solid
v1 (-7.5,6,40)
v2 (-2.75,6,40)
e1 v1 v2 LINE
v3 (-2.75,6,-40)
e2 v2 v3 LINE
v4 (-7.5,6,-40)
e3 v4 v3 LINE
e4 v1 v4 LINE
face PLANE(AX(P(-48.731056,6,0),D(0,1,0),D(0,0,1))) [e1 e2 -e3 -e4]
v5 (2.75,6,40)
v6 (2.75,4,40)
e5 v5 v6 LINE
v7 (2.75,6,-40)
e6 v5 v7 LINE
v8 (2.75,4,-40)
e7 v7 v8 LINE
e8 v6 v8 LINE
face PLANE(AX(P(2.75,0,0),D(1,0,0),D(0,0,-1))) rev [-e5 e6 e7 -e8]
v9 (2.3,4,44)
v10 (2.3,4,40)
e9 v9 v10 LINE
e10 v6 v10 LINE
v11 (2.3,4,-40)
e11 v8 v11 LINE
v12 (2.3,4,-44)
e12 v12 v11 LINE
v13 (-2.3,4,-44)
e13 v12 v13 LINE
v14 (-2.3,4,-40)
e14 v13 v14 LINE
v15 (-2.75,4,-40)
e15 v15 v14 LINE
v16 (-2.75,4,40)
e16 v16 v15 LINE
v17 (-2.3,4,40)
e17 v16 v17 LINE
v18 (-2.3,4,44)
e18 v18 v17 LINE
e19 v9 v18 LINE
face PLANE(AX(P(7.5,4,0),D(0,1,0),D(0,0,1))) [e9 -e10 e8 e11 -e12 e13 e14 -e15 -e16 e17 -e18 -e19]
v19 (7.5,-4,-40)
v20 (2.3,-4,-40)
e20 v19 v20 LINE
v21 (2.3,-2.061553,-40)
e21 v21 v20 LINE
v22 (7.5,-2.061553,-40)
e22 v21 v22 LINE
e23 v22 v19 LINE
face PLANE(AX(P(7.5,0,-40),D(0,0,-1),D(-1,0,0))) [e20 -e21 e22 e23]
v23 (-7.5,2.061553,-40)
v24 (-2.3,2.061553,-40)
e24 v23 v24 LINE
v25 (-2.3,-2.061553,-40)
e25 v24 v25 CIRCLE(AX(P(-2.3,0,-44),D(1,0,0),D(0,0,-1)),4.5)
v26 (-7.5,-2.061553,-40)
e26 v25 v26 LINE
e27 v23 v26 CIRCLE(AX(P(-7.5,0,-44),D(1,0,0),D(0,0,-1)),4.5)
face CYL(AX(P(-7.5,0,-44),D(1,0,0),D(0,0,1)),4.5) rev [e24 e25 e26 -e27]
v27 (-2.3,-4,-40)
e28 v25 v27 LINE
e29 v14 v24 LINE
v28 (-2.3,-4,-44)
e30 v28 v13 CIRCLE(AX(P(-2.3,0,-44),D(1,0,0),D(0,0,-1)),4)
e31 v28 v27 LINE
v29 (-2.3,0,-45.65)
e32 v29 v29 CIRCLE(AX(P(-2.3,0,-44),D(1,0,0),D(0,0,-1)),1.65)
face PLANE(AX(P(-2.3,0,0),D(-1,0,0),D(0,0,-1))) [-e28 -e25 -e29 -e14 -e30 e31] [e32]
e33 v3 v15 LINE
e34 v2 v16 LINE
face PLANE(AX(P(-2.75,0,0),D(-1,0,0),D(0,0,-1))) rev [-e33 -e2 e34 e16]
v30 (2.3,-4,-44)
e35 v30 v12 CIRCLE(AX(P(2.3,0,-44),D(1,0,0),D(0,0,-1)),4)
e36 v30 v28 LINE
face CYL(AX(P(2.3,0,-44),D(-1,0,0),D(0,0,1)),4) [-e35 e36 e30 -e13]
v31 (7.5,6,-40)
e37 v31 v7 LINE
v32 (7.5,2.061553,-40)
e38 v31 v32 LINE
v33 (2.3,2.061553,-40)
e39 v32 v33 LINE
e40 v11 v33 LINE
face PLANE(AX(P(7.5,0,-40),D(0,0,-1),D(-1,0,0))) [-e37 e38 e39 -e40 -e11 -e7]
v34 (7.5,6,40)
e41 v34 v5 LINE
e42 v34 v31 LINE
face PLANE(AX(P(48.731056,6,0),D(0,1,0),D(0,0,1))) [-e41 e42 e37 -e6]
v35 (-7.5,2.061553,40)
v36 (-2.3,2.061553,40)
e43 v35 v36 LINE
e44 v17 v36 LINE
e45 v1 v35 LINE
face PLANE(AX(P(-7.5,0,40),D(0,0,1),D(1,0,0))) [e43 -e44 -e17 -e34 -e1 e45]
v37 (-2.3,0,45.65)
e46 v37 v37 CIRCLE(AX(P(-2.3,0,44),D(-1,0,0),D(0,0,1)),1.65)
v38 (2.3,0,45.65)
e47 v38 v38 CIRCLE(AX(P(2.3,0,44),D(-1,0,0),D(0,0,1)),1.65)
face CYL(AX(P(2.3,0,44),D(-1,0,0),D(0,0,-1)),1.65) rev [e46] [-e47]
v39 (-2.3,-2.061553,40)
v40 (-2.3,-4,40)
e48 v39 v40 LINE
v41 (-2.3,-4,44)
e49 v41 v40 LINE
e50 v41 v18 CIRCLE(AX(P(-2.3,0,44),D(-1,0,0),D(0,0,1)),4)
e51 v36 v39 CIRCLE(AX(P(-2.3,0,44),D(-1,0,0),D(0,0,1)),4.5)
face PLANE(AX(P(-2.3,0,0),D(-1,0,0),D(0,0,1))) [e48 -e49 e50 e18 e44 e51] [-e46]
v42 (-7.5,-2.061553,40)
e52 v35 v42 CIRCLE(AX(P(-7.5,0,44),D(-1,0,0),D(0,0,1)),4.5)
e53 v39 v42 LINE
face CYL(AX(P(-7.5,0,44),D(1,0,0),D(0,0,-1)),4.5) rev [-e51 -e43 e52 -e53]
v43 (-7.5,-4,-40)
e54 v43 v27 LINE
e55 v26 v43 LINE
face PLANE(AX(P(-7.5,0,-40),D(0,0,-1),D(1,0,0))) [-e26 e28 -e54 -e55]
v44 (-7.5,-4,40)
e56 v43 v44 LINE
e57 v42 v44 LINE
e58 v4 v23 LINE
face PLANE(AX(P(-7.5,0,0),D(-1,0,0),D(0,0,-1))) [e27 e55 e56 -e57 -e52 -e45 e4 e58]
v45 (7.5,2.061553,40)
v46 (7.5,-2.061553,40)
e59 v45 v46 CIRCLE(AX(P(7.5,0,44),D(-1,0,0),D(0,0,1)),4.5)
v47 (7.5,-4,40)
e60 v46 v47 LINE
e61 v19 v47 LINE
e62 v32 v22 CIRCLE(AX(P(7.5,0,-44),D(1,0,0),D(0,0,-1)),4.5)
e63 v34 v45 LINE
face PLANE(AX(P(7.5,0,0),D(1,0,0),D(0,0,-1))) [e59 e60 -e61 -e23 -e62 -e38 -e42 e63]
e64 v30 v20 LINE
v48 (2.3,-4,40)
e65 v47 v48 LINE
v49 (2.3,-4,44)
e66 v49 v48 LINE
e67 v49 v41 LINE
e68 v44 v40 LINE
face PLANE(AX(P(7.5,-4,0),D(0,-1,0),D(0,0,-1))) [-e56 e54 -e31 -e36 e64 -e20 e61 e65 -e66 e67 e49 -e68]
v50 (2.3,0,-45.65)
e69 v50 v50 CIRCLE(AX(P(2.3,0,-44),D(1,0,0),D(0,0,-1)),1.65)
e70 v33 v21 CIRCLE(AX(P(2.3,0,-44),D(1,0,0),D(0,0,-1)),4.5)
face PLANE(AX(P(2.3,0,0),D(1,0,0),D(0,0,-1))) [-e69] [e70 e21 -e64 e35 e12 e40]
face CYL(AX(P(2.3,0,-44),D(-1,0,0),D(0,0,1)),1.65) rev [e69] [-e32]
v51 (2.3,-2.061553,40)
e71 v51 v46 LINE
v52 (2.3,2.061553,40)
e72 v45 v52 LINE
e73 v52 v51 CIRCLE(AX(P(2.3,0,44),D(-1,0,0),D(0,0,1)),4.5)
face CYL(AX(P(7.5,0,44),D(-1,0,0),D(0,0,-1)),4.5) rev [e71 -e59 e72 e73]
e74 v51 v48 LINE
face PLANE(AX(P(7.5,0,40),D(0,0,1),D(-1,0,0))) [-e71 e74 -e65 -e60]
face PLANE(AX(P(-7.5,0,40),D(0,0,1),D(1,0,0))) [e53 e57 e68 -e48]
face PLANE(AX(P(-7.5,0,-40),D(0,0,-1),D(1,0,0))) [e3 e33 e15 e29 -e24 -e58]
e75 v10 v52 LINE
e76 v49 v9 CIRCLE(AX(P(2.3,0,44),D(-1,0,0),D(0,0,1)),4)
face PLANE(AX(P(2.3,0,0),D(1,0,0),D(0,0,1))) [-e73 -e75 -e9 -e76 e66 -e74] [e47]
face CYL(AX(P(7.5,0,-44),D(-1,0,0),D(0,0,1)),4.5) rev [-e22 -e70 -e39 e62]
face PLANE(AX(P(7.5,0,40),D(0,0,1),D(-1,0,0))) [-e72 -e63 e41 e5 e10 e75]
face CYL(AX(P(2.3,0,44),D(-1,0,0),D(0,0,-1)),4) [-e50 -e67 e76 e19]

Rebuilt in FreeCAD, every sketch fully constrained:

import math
import FreeCAD as App
import Part
import Sketcher

V = App.Vector


def add_polygon(sketch, points):
    """Adds a closed chain of lines whose ends are joined by coincident constraints."""
    first, n = sketch.GeometryCount, len(points)
    for a, b in zip(points, points[1:] + points[:1]):
        sketch.addGeometry(Part.LineSegment(App.Vector(*a, 0), App.Vector(*b, 0)), False)
    for i in range(n):
        sketch.addConstraint(Sketcher.Constraint("Coincident", first + i, 2, first + (i + 1) % n, 1))

doc = App.newDocument("Part")
body = doc.addObject("PartDesign::Body", "Body")

# Sketch on YZ plane
sketch1 = body.newObject("Sketcher::SketchObject", "Sketch")
sketch1.AttachmentSupport = (doc.getObject("YZ_Plane"), [""])
sketch1.MapMode = "FlatFace"
add_polygon(sketch1, [(4, 0), (-4, 0), (-4, -40), (4, -40)])  # lines 0-3
sketch1.addConstraint([
    Sketcher.Constraint("Horizontal", 0),
    Sketcher.Constraint("Vertical", 1),
    Sketcher.Constraint("Horizontal", 2),
    Sketcher.Constraint("Vertical", 3),
    Sketcher.Constraint("Symmetric", 0, 2, 3, 2, -1, 1),
    Sketcher.Constraint("DistanceX", 0, 2, 0, 1, 8.0),
    Sketcher.Constraint("DistanceY", 1, 2, 1, 1, 40.0),
])
pad1 = body.newObject("PartDesign::Pad", "Pad")
pad1.Profile = sketch1
pad1.Length = 7.5

# Sketch on YZ plane
sketch2 = body.newObject("Sketcher::SketchObject", "Sketch001")
sketch2.AttachmentSupport = (doc.getObject("YZ_Plane"), [""])
sketch2.MapMode = "FlatFace"
sketch2.AttachmentOffset = App.Placement(V(0, 0, 2.75), App.Rotation())
add_polygon(sketch2, [(6, 0), (-4, 0), (-4, -40), (6, -40)])  # lines 0-3
sketch2.addConstraint([
    Sketcher.Constraint("Horizontal", 0),
    Sketcher.Constraint("Vertical", 1),
    Sketcher.Constraint("Horizontal", 2),
    Sketcher.Constraint("Vertical", 3),
    Sketcher.Constraint("PointOnObject", 0, 2, -1),
    Sketcher.Constraint("DistanceX", 0, 2, 0, 1, 10.0),
    Sketcher.Constraint("DistanceY", 1, 2, 1, 1, 40.0),
    Sketcher.Constraint("DistanceX", 0, 2, -1, 1, 4.0),
])
pad2 = body.newObject("PartDesign::Pad", "Pad001")
pad2.Profile = sketch2
pad2.Length = 4.75

# Sketch on YZ plane
sketch3 = body.newObject("Sketcher::SketchObject", "Sketch002")
sketch3.AttachmentSupport = (doc.getObject("YZ_Plane"), [""])
sketch3.MapMode = "FlatFace"
sketch3.addGeometry([
    Part.LineSegment(V(4, -44, 0), V(4, -40, 0)),  # 0
    Part.LineSegment(V(4, -40, 0), V(-4, -40, 0)),  # 1
    Part.LineSegment(V(-4, -40, 0), V(-4, -44, 0)),  # 2
    Part.ArcOfCircle(Part.Circle(V(0, -44, 0), V(0, 0, 1), 4), math.radians(180), math.radians(360)),  # 3
    Part.Circle(V(0, -44, 0), V(0, 0, 1), 1.6),  # 4
], False)
sketch3.addConstraint([
    Sketcher.Constraint("Coincident", 0, 2, 1, 1),
    Sketcher.Constraint("Coincident", 1, 2, 2, 1),
    Sketcher.Constraint("Tangent", 2, 2, 3, 1),
    Sketcher.Constraint("Tangent", 3, 2, 0, 1),
    Sketcher.Constraint("Vertical", 0),
    Sketcher.Constraint("Horizontal", 1),
    Sketcher.Constraint("Vertical", 2),
    Sketcher.Constraint("Coincident", 4, 3, 3, 3),
    Sketcher.Constraint("PointOnObject", 3, 3, -2),
    Sketcher.Constraint("Radius", 3, 4.0),
    Sketcher.Constraint("Diameter", 4, 3.3),
    Sketcher.Constraint("DistanceY", 0, 1, 0, 2, 4.0),
    Sketcher.Constraint("DistanceY", 3, 3, -1, 1, 44.0),
])
pad3 = body.newObject("PartDesign::Pad", "Pad002")
pad3.Profile = sketch3
pad3.Length = 2.3

# Sketch on YZ plane
sketch4 = body.newObject("Sketcher::SketchObject", "Sketch003")
sketch4.AttachmentSupport = (doc.getObject("YZ_Plane"), [""])
sketch4.MapMode = "FlatFace"
sketch4.AttachmentOffset = App.Placement(V(0, 0, 2.3), App.Rotation())
sketch4.addGeometry(Part.Circle(V(0, -44, 0), V(0, 0, 1), 4.5), False)
sketch4.addConstraint([
    Sketcher.Constraint("PointOnObject", 0, 3, -2),
    Sketcher.Constraint("Diameter", 0, 9.0),
    Sketcher.Constraint("DistanceY", 0, 3, -1, 1, 44.0),
])
pocket1 = body.newObject("PartDesign::Pocket", "Pocket")
pocket1.Profile = sketch4
pocket1.Type = "ThroughAll"
pocket1.Reversed = True
body2 = doc.addObject("PartDesign::Body", "Body001")
doc.recompute()

body2.BaseFeature = body
doc.recompute()

mirroring = doc.addObject("Part::Mirroring", "Mirroring")
mirroring.Source = body
mirroring.Base = V(0, 0, 0)
mirroring.Normal = V(1, 0, 0)
body3 = doc.addObject("PartDesign::Body", "Body002")
body3.BaseFeature = mirroring
boolean = body2.newObject("PartDesign::Boolean", "Boolean")
boolean.Type = "Fuse"
boolean.addObjects([body3])
doc.recompute()
body4 = doc.addObject("PartDesign::Body", "Body003")
doc.recompute()

body4.BaseFeature = body2
doc.recompute()

mirroring2 = doc.addObject("Part::Mirroring", "Mirroring001")
mirroring2.Source = body2
mirroring2.Base = V(0, 0, 0)
mirroring2.Normal = V(0, 0, 1)
body5 = doc.addObject("PartDesign::Body", "Body004")
body5.BaseFeature = mirroring2
boolean2 = body4.newObject("PartDesign::Boolean", "Boolean001")
boolean2.Type = "Fuse"
boolean2.addObjects([body5])
doc.recompute()
mirroring.Visibility = False
mirroring2.Visibility = False

doc.recompute()
